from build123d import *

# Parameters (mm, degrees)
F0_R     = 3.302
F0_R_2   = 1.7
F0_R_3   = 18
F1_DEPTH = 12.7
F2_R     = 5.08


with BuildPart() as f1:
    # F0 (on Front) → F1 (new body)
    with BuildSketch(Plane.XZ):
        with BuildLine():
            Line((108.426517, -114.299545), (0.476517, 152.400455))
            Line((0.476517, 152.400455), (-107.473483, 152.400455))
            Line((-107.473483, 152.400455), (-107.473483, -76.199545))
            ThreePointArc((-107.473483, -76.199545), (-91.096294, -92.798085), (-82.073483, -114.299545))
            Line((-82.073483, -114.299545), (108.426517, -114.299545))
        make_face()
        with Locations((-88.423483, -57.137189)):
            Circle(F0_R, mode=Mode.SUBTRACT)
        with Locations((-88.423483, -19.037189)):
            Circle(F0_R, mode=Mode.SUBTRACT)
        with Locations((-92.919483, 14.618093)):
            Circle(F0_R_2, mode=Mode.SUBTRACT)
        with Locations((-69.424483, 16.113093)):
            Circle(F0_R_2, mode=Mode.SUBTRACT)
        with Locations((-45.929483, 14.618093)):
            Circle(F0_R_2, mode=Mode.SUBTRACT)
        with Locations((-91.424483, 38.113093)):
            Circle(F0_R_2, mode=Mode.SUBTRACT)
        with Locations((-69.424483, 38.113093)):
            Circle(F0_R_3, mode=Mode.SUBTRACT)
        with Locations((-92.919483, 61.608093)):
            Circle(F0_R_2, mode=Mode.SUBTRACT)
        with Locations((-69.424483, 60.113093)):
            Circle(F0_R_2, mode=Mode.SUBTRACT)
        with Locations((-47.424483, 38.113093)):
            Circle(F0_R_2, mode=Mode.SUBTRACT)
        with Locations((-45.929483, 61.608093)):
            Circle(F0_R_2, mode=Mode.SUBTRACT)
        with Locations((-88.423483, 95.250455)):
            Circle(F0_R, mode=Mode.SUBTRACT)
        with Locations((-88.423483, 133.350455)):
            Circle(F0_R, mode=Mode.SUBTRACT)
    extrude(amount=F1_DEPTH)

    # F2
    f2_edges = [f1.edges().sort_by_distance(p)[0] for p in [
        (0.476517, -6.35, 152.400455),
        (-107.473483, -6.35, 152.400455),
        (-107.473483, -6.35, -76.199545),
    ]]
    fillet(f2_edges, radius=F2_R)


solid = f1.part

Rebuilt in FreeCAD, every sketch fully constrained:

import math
import FreeCAD as App
import Part
import Sketcher
Q = App.Units.Quantity


def edges_at(feature, points):
    """Names of the edges that pass closest to the given points."""
    edges = feature.Shape.Edges
    near = lambda p: min(range(len(edges)), key=lambda i: edges[i].distToShape(Part.Vertex(*p))[0])
    return sorted({f"Edge{near(p) + 1}" for p in points})

doc = App.newDocument("Part")
body = doc.addObject("PartDesign::Body", "Body")

# Sketch on XZ plane
sketch1 = body.newObject("Sketcher::SketchObject", "Sketch")
sketch1.AttachmentSupport = (doc.getObject("XZ_Plane"), [""])
sketch1.MapMode = "FlatFace"
sketch1.addGeometry([
    Part.LineSegment(App.Vector(108.4, -114.3, 0), App.Vector(0.5, 152.4, 0)),  # 0
    Part.LineSegment(App.Vector(0.5, 152.4, 0), App.Vector(-107.5, 152.4, 0)),  # 1
    Part.LineSegment(App.Vector(-107.5, 152.4, 0), App.Vector(-107.5, -76.2, 0)),  # 2
    Part.ArcOfCircle(Part.Circle(App.Vector(-142.3, -126.9, 0), App.Vector(0, 0, 1), 61.5), math.radians(12), math.radians(56)),  # 3
    Part.LineSegment(App.Vector(-82.1, -114.3, 0), App.Vector(108.4, -114.3, 0)),  # 4
    Part.Circle(App.Vector(-88.4, -57.1, 0), App.Vector(0, 0, 1), 3.3),  # 5
    Part.Circle(App.Vector(-88.4, -19, 0), App.Vector(0, 0, 1), 3.3),  # 6
    Part.Circle(App.Vector(-92.9, 14.6, 0), App.Vector(0, 0, 1), 1.7),  # 7
    Part.Circle(App.Vector(-69.4, 16.1, 0), App.Vector(0, 0, 1), 1.7),  # 8
    Part.Circle(App.Vector(-45.9, 14.6, 0), App.Vector(0, 0, 1), 1.7),  # 9
    Part.Circle(App.Vector(-91.4, 38.1, 0), App.Vector(0, 0, 1), 1.7),  # 10
    Part.Circle(App.Vector(-92.9, 61.6, 0), App.Vector(0, 0, 1), 1.7),  # 11
    Part.Circle(App.Vector(-88.4, 95.3, 0), App.Vector(0, 0, 1), 3.3),  # 12
    Part.Circle(App.Vector(-88.4, 133.4, 0), App.Vector(0, 0, 1), 3.3),  # 13
    Part.Circle(App.Vector(-69.4, 38.1, 0), App.Vector(0, 0, 1), 18),  # 14
    Part.Circle(App.Vector(-69.4, 60.1, 0), App.Vector(0, 0, 1), 1.7),  # 15
    Part.Circle(App.Vector(-47.4, 38.1, 0), App.Vector(0, 0, 1), 1.7),  # 16
    Part.Circle(App.Vector(-45.9, 61.6, 0), App.Vector(0, 0, 1), 1.7),  # 17
], False)
sketch1.addConstraint([
    Sketcher.Constraint("Coincident", 0, 2, 1, 1),
    Sketcher.Constraint("Coincident", 1, 2, 2, 1),
    Sketcher.Constraint("Coincident", 2, 2, 3, 2),
    Sketcher.Constraint("Coincident", 3, 1, 4, 1),
    Sketcher.Constraint("Coincident", 4, 2, 0, 1),
    Sketcher.Constraint("Horizontal", 1),
    Sketcher.Constraint("Vertical", 2),
    Sketcher.Constraint("Horizontal", 4),
    Sketcher.Constraint("Equal", 5, 6),
    Sketcher.Constraint("Equal", 7, 8),
    Sketcher.Constraint("Equal", 8, 9),
    Sketcher.Constraint("Equal", 9, 10),
    Sketcher.Constraint("Equal", 10, 11),
    Sketcher.Constraint("Equal", 6, 12),
    Sketcher.Constraint("Equal", 12, 13),
    Sketcher.Constraint("Equal", 11, 15),
    Sketcher.Constraint("Equal", 15, 16),
    Sketcher.Constraint("Equal", 16, 17),
    Sketcher.Constraint("Horizontal", 7, 3, 9, 3),
    Sketcher.Constraint("Horizontal", 10, 3, 14, 3),
    Sketcher.Constraint("Horizontal", 14, 3, 16, 3),
    Sketcher.Constraint("Horizontal", 11, 3, 17, 3),
    Sketcher.Constraint("Vertical", 5, 3, 6, 3),
    Sketcher.Constraint("Vertical", 7, 3, 11, 3),
    Sketcher.Constraint("Vertical", 6, 3, 12, 3),
    Sketcher.Constraint("Vertical", 12, 3, 13, 3),
    Sketcher.Constraint("Vertical", 8, 3, 14, 3),
    Sketcher.Constraint("Vertical", 14, 3, 15, 3),
    Sketcher.Constraint("Vertical", 9, 3, 17, 3),
    Sketcher.Constraint("Diameter", 5, Q("0.26 in")),
    Sketcher.Constraint("DistanceY", 2, 2, 2, 1, Q("9 in")),
    Sketcher.Constraint("DistanceX", 4, 1, 4, 2, Q("7.5 in")),
    Sketcher.Constraint("DistanceX", 2, 2, 3, 1, Q("1 in")),
    Sketcher.Constraint("DistanceX", 1, 2, 1, 1, Q("4.25 in")),
    Sketcher.Constraint("DistanceY", 5, 3, 6, 3, Q("1.5 in")),
    Sketcher.Constraint("DistanceY", 12, 3, 13, 3, Q("1.5 in")),
    Sketcher.Constraint("DistanceX", 13, 3, 0, 2, Q("3.5 in")),
    Sketcher.Constraint("DistanceY", 3, 1, 2, 2, Q("1.5 in")),
    Sketcher.Constraint("Diameter", 7, Q("3.4 mm")),
    Sketcher.Constraint("Diameter", 14, Q("36 mm")),
    Sketcher.Constraint("DistanceX", 7, 3, 9, 3, Q("1.85 in")),
    Sketcher.Constraint("DistanceY", 7, 3, 11, 3, Q("1.85 in")),
    Sketcher.Constraint("DistanceY", 13, 3, 0, 2, Q("0.75 in")),
    Sketcher.Constraint("DistanceX", 7, 3, 8, 3, Q("0.925 in")),
    Sketcher.Constraint("DistanceY", 7, 3, 10, 3, Q("0.925 in")),
    Sketcher.Constraint("Radius", 3, Q("61.515137 mm")),
    Sketcher.Constraint("DistanceX", 7, 3, 6, 3, Q("4.496 mm")),
    Sketcher.Constraint("DistanceY", 7, 3, 8, 3, Q("1.495 mm")),
    Sketcher.Constraint("DistanceX", 7, 3, 10, 3, Q("1.495 mm")),
    Sketcher.Constraint("DistanceY", 14, 3, 15, 3, Q("22 mm")),
    Sketcher.Constraint("DistanceX", 14, 3, 16, 3, Q("22 mm")),
    Sketcher.Constraint("DistanceX", 3, 3, -1, 1, Q("142.279982 mm")),
    Sketcher.Constraint("DistanceY", 5, 3, -1, 1, Q("57.137189 mm")),
    Sketcher.Constraint("DistanceY", 5, 3, 7, 3, Q("71.755282 mm")),
    Sketcher.Constraint("DistanceY", 7, 3, 12, 3, Q("80.632362 mm")),
])
pad1 = body.newObject("PartDesign::Pad", "Pad")
pad1.Profile = sketch1
pad1.Length = Q("0.5 in")
doc.recompute()

fillet = body.newObject("PartDesign::Fillet", "Fillet")
fillet.Base = (pad1, edges_at(pad1, [(0.477, -6.35, 152.4), (-107.473, -6.35, 152.4), (-107.473, -6.35, -76.2)]))
fillet.Radius = Q("0.2 in")

doc.recompute()
